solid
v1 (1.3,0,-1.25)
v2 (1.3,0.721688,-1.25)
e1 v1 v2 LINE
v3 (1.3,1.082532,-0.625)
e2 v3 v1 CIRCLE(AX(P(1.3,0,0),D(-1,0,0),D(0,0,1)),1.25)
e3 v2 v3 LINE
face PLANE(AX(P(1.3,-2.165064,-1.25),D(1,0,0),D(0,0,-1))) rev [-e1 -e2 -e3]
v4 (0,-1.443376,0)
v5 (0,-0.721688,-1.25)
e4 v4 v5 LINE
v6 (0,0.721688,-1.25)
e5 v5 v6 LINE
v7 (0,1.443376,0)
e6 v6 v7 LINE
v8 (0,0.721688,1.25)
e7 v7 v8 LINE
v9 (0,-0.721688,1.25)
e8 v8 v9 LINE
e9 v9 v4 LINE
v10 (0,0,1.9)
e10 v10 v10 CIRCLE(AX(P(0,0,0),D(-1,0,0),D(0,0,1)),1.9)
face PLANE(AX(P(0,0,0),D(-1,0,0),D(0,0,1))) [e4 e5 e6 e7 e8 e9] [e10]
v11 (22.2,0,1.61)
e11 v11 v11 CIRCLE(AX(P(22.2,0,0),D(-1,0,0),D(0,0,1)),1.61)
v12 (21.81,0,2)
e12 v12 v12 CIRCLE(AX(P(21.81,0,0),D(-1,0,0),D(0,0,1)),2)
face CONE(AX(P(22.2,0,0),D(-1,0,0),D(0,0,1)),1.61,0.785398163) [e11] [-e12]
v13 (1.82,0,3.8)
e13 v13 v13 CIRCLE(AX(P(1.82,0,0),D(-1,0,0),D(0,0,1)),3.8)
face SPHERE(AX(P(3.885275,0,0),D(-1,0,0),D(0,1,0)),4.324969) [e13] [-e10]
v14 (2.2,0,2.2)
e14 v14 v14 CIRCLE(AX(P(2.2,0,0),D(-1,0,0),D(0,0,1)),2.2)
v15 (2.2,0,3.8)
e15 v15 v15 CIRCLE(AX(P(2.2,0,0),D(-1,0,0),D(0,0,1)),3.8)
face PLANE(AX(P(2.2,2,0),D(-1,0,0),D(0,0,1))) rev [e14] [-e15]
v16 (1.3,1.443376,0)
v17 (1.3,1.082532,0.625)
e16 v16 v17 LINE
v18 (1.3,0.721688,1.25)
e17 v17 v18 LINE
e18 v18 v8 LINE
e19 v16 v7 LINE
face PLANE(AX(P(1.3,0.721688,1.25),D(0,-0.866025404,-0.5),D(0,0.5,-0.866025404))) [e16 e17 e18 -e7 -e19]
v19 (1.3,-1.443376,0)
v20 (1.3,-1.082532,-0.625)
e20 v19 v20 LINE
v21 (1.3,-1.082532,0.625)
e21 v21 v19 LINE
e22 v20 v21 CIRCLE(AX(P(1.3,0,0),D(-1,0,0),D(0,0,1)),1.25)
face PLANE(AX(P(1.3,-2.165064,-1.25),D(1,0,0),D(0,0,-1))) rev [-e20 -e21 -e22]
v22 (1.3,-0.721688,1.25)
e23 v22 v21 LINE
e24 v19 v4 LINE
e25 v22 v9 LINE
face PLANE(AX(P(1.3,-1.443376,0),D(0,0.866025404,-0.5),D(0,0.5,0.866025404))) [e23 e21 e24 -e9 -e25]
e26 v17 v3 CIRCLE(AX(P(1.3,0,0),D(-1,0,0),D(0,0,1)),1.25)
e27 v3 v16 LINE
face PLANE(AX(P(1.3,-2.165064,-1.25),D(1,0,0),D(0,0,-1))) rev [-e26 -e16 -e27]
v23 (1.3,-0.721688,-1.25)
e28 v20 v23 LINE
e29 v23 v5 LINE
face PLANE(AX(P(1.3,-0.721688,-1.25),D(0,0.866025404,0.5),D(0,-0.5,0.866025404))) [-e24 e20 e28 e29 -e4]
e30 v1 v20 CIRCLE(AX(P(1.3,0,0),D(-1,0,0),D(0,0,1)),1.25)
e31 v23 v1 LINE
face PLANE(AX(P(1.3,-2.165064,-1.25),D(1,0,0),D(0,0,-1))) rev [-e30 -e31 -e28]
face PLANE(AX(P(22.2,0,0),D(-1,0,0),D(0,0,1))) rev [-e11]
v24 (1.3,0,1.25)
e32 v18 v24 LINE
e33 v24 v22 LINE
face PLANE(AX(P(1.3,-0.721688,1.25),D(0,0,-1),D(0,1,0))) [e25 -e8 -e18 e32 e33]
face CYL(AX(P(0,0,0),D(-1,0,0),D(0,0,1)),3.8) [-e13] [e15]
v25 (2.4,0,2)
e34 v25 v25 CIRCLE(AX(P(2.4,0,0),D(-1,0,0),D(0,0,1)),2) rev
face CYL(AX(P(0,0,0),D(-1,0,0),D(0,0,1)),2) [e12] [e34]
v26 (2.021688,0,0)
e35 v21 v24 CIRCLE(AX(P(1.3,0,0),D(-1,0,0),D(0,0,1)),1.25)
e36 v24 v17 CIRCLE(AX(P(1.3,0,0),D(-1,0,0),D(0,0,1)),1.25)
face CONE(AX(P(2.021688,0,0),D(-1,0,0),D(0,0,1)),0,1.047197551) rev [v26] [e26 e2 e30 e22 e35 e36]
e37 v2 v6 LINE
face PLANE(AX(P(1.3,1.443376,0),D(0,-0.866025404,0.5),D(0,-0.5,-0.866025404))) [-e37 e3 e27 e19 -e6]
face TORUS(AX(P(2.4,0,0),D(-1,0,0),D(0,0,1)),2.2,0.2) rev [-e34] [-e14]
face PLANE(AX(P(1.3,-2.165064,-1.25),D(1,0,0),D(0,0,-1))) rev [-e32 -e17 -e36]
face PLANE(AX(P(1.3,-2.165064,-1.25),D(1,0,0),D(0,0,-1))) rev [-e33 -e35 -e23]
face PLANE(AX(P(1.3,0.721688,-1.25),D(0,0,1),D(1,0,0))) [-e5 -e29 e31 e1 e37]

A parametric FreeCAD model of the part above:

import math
import FreeCAD as App
import Part
import Sketcher

V = App.Vector
Q = App.Units.Quantity


def edges_at(feature, points):
    """Names of the edges that pass closest to the given points."""
    edges = feature.Shape.Edges
    near = lambda p: min(range(len(edges)), key=lambda i: edges[i].distToShape(Part.Vertex(*p))[0])
    return sorted({f"Edge{near(p) + 1}" for p in points})

doc = App.newDocument("Part")
params = doc.addObject("Spreadsheet::Sheet", "Params")
for row, (alias, value) in enumerate([
    ("sketch1_width", "22.2 mm"),
    ("sketch1_height", "1.8 mm"),
    ("sketch1_height2", "1.9 mm"),
    ("sketch1_width2", "19.61 mm"),
    ("sketch1_width3", "0.38 mm"),
    ("revolution_angle", "360 deg"),
    ("fillet_radius", "0.2 mm"),
    ("sketch2_width", "1.3 mm"),
    ("sketch2_height", "1.25 mm"),
    ("groove_angle", "360 deg"),
    ("pocket1_length", "1.3 mm"),
], start=1):
    params.set(f"A{row}", alias)
    params.set(f"B{row}", "=" + value)
    params.setAlias(f"B{row}", alias)

body = doc.addObject("PartDesign::Body", "Body")

# Sketch on XY plane
sketch1 = body.newObject("Sketcher::SketchObject", "Sketch")
sketch1.AttachmentSupport = (doc.getObject("XY_Plane"), [""])
sketch1.MapMode = "FlatFace"
sketch1.addGeometry(Part.LineSegment(V(22.2, 0, 0), V(22.2, 1.61, 0)), False)
sketch1.addGeometry(Part.LineSegment(V(22.2, 1.61, 0), V(21.81, 2, 0)), False)
sketch1.addGeometry(Part.LineSegment(V(21.81, 2, 0), V(2.2, 2, 0)), False)
sketch1.addGeometry(Part.LineSegment(V(2.2, 2, 0), V(2.2, 3.8, 0)), False)
sketch1.addGeometry(Part.LineSegment(V(2.2, 3.8, 0), V(1.82, 3.8, 0)), False)
sketch1.addGeometry(Part.ArcOfCircle(Part.Circle(V(3.89, 0, 0), V(0, 0, 1), 4.32), math.radians(119), math.radians(154)), False)
sketch1.addGeometry(Part.LineSegment(V(0, 1.9, 0), V(0, 0, 0)), False)
sketch1.addGeometry(Part.LineSegment(V(0, 0, 0), V(22.2, 0, 0)), False)
sketch1.addConstraint(Sketcher.Constraint("Coincident", 0, 2, 1, 1))
sketch1.addConstraint(Sketcher.Constraint("Coincident", 1, 2, 2, 1))
sketch1.addConstraint(Sketcher.Constraint("Coincident", 2, 2, 3, 1))
sketch1.addConstraint(Sketcher.Constraint("Coincident", 3, 2, 4, 1))
sketch1.addConstraint(Sketcher.Constraint("Coincident", 4, 2, 5, 1))
sketch1.addConstraint(Sketcher.Constraint("Coincident", 5, 2, 6, 1))
sketch1.addConstraint(Sketcher.Constraint("Coincident", 6, 2, 7, 1))
sketch1.addConstraint(Sketcher.Constraint("Coincident", 7, 2, 0, 1))
sketch1.addConstraint(Sketcher.Constraint("Vertical", 0))
sketch1.addConstraint(Sketcher.Constraint("Horizontal", 2))
sketch1.addConstraint(Sketcher.Constraint("Vertical", 3))
sketch1.addConstraint(Sketcher.Constraint("Horizontal", 4))
sketch1.addConstraint(Sketcher.Constraint("Vertical", 6))
sketch1.addConstraint(Sketcher.Constraint("Horizontal", 7))
sketch1.addConstraint(Sketcher.Constraint("Coincident", 6, 2, -1, 1))
sketch1.addConstraint(Sketcher.Constraint("PointOnObject", 5, 3, -1))
sketch1.addConstraint(Sketcher.Constraint("Angle", 1, Q("135 deg")))
sketch1.addConstraint(Sketcher.Constraint("DistanceX", 7, 1, 7, 2, 22.2))
sketch1.addConstraint(Sketcher.Constraint("DistanceY", 3, 1, 3, 2, 1.8))
sketch1.addConstraint(Sketcher.Constraint("DistanceY", 6, 2, 6, 1, 1.9))
sketch1.addConstraint(Sketcher.Constraint("DistanceY", -1, 1, 1, 2, 2.0))
sketch1.addConstraint(Sketcher.Constraint("DistanceX", 2, 2, 0, 2, 20.0))
sketch1.addConstraint(Sketcher.Constraint("DistanceX", 2, 2, 2, 1, 19.61))
sketch1.addConstraint(Sketcher.Constraint("DistanceX", 4, 2, 4, 1, 0.38))
sketch1.setExpression("Constraints[17]", "Params.sketch1_width")
sketch1.setExpression("Constraints[18]", "Params.sketch1_height")
sketch1.setExpression("Constraints[19]", "Params.sketch1_height2")
sketch1.setExpression("Constraints[22]", "Params.sketch1_width2")
sketch1.setExpression("Constraints[23]", "Params.sketch1_width3")
revolution = body.newObject("PartDesign::Revolution", "Revolution")
revolution.Profile = sketch1
revolution.ReferenceAxis = (sketch1, ["H_Axis"])
revolution.setExpression("Angle", "Params.revolution_angle")
doc.recompute()

fillet = body.newObject("PartDesign::Fillet", "Fillet")
fillet.Base = (revolution, edges_at(revolution, [(2.2, -2, 0)]))
fillet.setExpression("Radius", "Params.fillet_radius")

# Sketch on XY plane
sketch2 = body.newObject("Sketcher::SketchObject", "Sketch001")
sketch2.AttachmentSupport = (doc.getObject("XY_Plane"), [""])
sketch2.MapMode = "FlatFace"
sketch2.addGeometry(Part.LineSegment(V(1.3, 1.2, 0), V(0, 1.2, 0)), False)
sketch2.addGeometry(Part.LineSegment(V(0, 1.2, 0), V(0, 0, 0)), False)
sketch2.addGeometry(Part.LineSegment(V(0, 0, 0), V(2, 0, 0)), False)
sketch2.addGeometry(Part.LineSegment(V(2, 0, 0), V(1.3, 1.2, 0)), False)
sketch2.addConstraint(Sketcher.Constraint("Coincident", 0, 2, 1, 1))
sketch2.addConstraint(Sketcher.Constraint("Coincident", 1, 2, 2, 1))
sketch2.addConstraint(Sketcher.Constraint("Coincident", 2, 2, 3, 1))
sketch2.addConstraint(Sketcher.Constraint("Coincident", 3, 2, 0, 1))
sketch2.addConstraint(Sketcher.Constraint("Horizontal", 0))
sketch2.addConstraint(Sketcher.Constraint("Vertical", 1))
sketch2.addConstraint(Sketcher.Constraint("Horizontal", 2))
sketch2.addConstraint(Sketcher.Constraint("Coincident", 1, 2, -1, 1))
sketch2.addConstraint(Sketcher.Constraint("Angle", 3, Q("120 deg")))
sketch2.addConstraint(Sketcher.Constraint("DistanceX", 0, 2, 0, 1, 1.3))
sketch2.addConstraint(Sketcher.Constraint("DistanceY", 1, 2, 1, 1, 1.25))
sketch2.setExpression("Constraints[9]", "Params.sketch2_width")
sketch2.setExpression("Constraints[10]", "Params.sketch2_height")
groove = body.newObject("PartDesign::Groove", "Groove")
groove.Profile = sketch2
groove.ReferenceAxis = (sketch2, ["H_Axis"])
groove.setExpression("Angle", "Params.groove_angle")

# Sketch on YZ plane
sketch3 = body.newObject("Sketcher::SketchObject", "Sketch002")
sketch3.AttachmentSupport = (doc.getObject("YZ_Plane"), [""])
sketch3.MapMode = "FlatFace"
sketch3.addGeometry(Part.LineSegment(V(0.7, 1.2, 0), V(-0.7, 1.2, 0)), False)
sketch3.addGeometry(Part.LineSegment(V(-0.7, 1.2, 0), V(-1.4, 0, 0)), False)
sketch3.addGeometry(Part.LineSegment(V(-1.4, 0, 0), V(-0.7, -1.2, 0)), False)
sketch3.addGeometry(Part.LineSegment(V(-0.7, -1.2, 0), V(0.7, -1.2, 0)), False)
sketch3.addGeometry(Part.LineSegment(V(0.7, -1.2, 0), V(1.4, 0, 0)), False)
sketch3.addGeometry(Part.LineSegment(V(1.4, 0, 0), V(0.7, 1.2, 0)), False)
sketch3.addConstraint(Sketcher.Constraint("Coincident", 0, 2, 1, 1))
sketch3.addConstraint(Sketcher.Constraint("Coincident", 1, 2, 2, 1))
sketch3.addConstraint(Sketcher.Constraint("Coincident", 2, 2, 3, 1))
sketch3.addConstraint(Sketcher.Constraint("Coincident", 3, 2, 4, 1))
sketch3.addConstraint(Sketcher.Constraint("Coincident", 4, 2, 5, 1))
sketch3.addConstraint(Sketcher.Constraint("Coincident", 5, 2, 0, 1))
sketch3.addConstraint(Sketcher.Constraint("Horizontal", 0))
sketch3.addConstraint(Sketcher.Constraint("Horizontal", 3))
sketch3.addConstraint(Sketcher.Constraint("Symmetric", 0, 2, 3, 2, -1, 1))
sketch3.addConstraint(Sketcher.Constraint("Symmetric", 1, 2, 4, 2, -1, 1))
sketch3.addConstraint(Sketcher.Constraint("PointOnObject", 1, 2, -1))
sketch3.addConstraint(Sketcher.Constraint("Parallel", 2, 5))
sketch3.addConstraint(Sketcher.Constraint("Vertical", 0, 2, 2, 2))
sketch3.addConstraint(Sketcher.Constraint("Angle", 1, Q("-120 deg")))
sketch3.addConstraint(Sketcher.Constraint("DistanceY", 2, 2, 0, 2, 2.5))
sketch3.addConstraint(Sketcher.Constraint("DistanceX", 0, 2, 0, 1, 1.443376))
pocket1 = body.newObject("PartDesign::Pocket", "Pocket")
pocket1.Profile = sketch3
pocket1.setExpression("Length", "Params.pocket1_length")
pocket1.Reversed = True

doc.recompute()
